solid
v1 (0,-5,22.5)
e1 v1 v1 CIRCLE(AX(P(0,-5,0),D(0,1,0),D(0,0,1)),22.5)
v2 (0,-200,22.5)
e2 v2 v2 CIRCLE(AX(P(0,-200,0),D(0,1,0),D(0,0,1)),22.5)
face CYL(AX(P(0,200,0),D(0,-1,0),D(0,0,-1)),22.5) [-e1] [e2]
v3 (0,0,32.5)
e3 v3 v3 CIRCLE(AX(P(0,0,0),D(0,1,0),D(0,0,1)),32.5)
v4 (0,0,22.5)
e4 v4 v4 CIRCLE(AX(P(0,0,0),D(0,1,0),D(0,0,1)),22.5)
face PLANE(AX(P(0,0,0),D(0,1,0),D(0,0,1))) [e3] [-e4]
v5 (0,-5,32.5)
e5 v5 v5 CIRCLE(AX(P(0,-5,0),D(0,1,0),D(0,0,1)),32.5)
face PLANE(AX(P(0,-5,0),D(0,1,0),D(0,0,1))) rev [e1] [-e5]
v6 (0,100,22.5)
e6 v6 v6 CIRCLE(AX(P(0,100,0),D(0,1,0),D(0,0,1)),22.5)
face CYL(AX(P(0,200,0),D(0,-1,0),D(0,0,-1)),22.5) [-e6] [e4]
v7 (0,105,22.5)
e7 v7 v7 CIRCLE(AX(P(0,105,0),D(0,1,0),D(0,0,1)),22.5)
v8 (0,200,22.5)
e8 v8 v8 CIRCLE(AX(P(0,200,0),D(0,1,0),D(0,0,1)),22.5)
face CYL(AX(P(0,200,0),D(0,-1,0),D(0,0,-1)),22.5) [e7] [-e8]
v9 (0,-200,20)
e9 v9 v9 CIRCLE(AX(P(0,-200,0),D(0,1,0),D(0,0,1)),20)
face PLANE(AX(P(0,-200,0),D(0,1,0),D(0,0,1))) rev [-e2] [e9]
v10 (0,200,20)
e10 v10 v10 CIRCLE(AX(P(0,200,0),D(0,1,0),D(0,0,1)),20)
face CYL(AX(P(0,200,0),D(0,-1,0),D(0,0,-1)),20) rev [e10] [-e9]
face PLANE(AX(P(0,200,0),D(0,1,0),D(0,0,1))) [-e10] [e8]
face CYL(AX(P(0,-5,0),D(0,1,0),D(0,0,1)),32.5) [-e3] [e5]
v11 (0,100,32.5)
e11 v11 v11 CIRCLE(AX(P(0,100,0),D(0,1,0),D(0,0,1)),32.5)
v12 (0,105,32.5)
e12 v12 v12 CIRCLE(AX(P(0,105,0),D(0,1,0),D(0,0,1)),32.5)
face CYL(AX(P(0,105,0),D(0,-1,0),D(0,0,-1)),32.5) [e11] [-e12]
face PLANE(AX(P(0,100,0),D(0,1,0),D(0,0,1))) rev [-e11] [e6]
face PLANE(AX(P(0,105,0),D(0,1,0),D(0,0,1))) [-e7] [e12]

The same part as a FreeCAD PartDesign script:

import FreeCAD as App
import Part
import Sketcher

doc = App.newDocument("Part")
params = doc.addObject("Spreadsheet::Sheet", "Params")
for row, (alias, value) in enumerate([
    ("sketch1_diameter", "45 mm"),
    ("sketch1_diameter2", "40 mm"),
    ("pad1_length", "400 mm"),
    ("sketch2_diameter", "65 mm"),
    ("sketch2_diameter2", "45 mm"),
    ("pad2_length", "5 mm"),
    ("sketch3_diameter", "65 mm"),
    ("sketch3_diameter2", "45 mm"),
    ("pad3_length", "5 mm"),
], start=1):
    params.set(f"A{row}", alias)
    params.set(f"B{row}", "=" + value)
    params.setAlias(f"B{row}", alias)

body = doc.addObject("PartDesign::Body", "Body")

# Sketch on XZ plane
sketch1 = body.newObject("Sketcher::SketchObject", "Sketch")
sketch1.AttachmentSupport = (doc.getObject("XZ_Plane"), [""])
sketch1.MapMode = "FlatFace"
sketch1.addGeometry([
    Part.Circle(App.Vector(0, 0, 0), App.Vector(0, 0, 1), 22),
    Part.Circle(App.Vector(0, 0, 0), App.Vector(0, 0, 1), 20),
], False)
sketch1.addConstraint([
    Sketcher.Constraint("Coincident", 0, 3, -1, 1),
    Sketcher.Constraint("Coincident", 1, 3, -1, 1),
    Sketcher.Constraint("Diameter", 0, 45.0),
    Sketcher.Constraint("Diameter", 1, 40.0),
])
sketch1.setExpression("Constraints[2]", "Params.sketch1_diameter")
sketch1.setExpression("Constraints[3]", "Params.sketch1_diameter2")
pad1 = body.newObject("PartDesign::Pad", "Pad")
pad1.Profile = sketch1
pad1.setExpression("Length", "Params.pad1_length")
pad1.Midplane = True

# Sketch on XZ plane
sketch2 = body.newObject("Sketcher::SketchObject", "Sketch001")
sketch2.AttachmentSupport = (doc.getObject("XZ_Plane"), [""])
sketch2.MapMode = "FlatFace"
sketch2.AttachmentOffset = App.Placement(App.Vector(0, 0, -100), App.Rotation())
sketch2.addGeometry([
    Part.Circle(App.Vector(0, 0, 0), App.Vector(0, 0, 1), 32),
    Part.Circle(App.Vector(0, 0, 0), App.Vector(0, 0, 1), 22),
], False)
sketch2.addConstraint([
    Sketcher.Constraint("Coincident", 0, 3, -1, 1),
    Sketcher.Constraint("Coincident", 1, 3, -1, 1),
    Sketcher.Constraint("Diameter", 0, 65.0),
    Sketcher.Constraint("Diameter", 1, 45.0),
])
sketch2.setExpression("Constraints[2]", "Params.sketch2_diameter")
sketch2.setExpression("Constraints[3]", "Params.sketch2_diameter2")
pad2 = body.newObject("PartDesign::Pad", "Pad001")
pad2.Profile = sketch2
pad2.setExpression("Length", "Params.pad2_length")
pad2.Reversed = True

# Sketch on XZ plane
sketch3 = body.newObject("Sketcher::SketchObject", "Sketch002")
sketch3.AttachmentSupport = (doc.getObject("XZ_Plane"), [""])
sketch3.MapMode = "FlatFace"
sketch3.addGeometry([
    Part.Circle(App.Vector(0, 0, 0), App.Vector(0, 0, 1), 32),
    Part.Circle(App.Vector(0, 0, 0), App.Vector(0, 0, 1), 22),
], False)
sketch3.addConstraint([
    Sketcher.Constraint("Coincident", 0, 3, -1, 1),
    Sketcher.Constraint("Coincident", 1, 3, -1, 1),
    Sketcher.Constraint("Diameter", 0, 65.0),
    Sketcher.Constraint("Diameter", 1, 45.0),
])
sketch3.setExpression("Constraints[2]", "Params.sketch3_diameter")
sketch3.setExpression("Constraints[3]", "Params.sketch3_diameter2")
pad3 = body.newObject("PartDesign::Pad", "Pad002")
pad3.Profile = sketch3
pad3.setExpression("Length", "Params.pad3_length")

doc.recompute()
